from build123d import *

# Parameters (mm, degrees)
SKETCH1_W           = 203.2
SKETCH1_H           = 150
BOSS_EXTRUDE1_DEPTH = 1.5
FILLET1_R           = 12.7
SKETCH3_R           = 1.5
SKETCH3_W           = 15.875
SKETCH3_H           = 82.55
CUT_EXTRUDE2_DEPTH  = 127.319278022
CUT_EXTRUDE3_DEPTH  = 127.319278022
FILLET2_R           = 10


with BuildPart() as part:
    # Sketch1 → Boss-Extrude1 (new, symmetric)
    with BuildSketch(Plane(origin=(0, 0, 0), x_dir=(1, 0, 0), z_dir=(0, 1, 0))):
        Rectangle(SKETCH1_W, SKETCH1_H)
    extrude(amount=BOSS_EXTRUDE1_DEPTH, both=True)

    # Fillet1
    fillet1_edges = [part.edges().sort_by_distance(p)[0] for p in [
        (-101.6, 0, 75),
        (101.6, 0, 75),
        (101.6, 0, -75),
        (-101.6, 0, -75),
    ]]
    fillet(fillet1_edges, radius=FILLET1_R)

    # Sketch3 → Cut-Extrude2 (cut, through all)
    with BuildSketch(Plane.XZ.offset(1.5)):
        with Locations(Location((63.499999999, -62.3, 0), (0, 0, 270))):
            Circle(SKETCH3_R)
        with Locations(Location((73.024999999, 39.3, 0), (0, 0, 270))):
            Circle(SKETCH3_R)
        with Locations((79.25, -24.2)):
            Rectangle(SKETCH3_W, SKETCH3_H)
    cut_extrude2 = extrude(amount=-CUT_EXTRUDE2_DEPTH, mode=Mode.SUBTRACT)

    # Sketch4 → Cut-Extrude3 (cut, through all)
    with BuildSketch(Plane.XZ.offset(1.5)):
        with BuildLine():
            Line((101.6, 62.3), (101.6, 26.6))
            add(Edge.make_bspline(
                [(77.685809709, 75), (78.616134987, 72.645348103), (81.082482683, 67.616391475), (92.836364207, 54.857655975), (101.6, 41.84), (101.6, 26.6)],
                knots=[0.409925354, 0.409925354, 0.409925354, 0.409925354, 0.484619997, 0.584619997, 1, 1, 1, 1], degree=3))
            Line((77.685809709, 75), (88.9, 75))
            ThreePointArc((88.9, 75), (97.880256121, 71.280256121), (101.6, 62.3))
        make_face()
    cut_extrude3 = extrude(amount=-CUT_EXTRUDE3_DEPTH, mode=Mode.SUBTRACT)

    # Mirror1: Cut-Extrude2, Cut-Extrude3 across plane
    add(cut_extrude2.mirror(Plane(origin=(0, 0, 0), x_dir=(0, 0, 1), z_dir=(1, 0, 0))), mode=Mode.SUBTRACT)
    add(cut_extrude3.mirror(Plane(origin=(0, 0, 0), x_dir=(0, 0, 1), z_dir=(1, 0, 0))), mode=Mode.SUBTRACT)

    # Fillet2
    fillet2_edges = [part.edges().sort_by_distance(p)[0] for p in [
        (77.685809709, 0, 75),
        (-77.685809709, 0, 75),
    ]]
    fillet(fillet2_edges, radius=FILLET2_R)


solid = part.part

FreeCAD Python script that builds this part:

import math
import FreeCAD as App
import Part
import Sketcher


def edges_at(feature, points):
    """Names of the edges that pass closest to the given points."""
    edges = feature.Shape.Edges
    near = lambda p: min(range(len(edges)), key=lambda i: edges[i].distToShape(Part.Vertex(*p))[0])
    return sorted({f"Edge{near(p) + 1}" for p in points})

doc = App.newDocument("Part")
body = doc.addObject("PartDesign::Body", "Body")

# Sketch on XZ plane
sketch1 = doc.addObject("Sketcher::SketchObject", "Sketch")
body.addObject(sketch1)
sketch1.AttachmentSupport = (doc.XZ_Plane, [""])
sketch1.MapMode = "FlatFace"
sketch1.addGeometry(Part.LineSegment(App.Vector(-102, -75, 0), App.Vector(-102, 75, 0)), False)
sketch1.addGeometry(Part.LineSegment(App.Vector(-102, 75, 0), App.Vector(102, 75, 0)), False)
sketch1.addGeometry(Part.LineSegment(App.Vector(102, 75, 0), App.Vector(102, -75, 0)), False)
sketch1.addGeometry(Part.LineSegment(App.Vector(102, -75, 0), App.Vector(-102, -75, 0)), False)
sketch1.addConstraint(Sketcher.Constraint("Coincident", 0, 2, 1, 1))
sketch1.addConstraint(Sketcher.Constraint("Coincident", 1, 2, 2, 1))
sketch1.addConstraint(Sketcher.Constraint("Coincident", 2, 2, 3, 1))
sketch1.addConstraint(Sketcher.Constraint("Coincident", 3, 2, 0, 1))
sketch1.addConstraint(Sketcher.Constraint("Vertical", 0))
sketch1.addConstraint(Sketcher.Constraint("Horizontal", 1))
sketch1.addConstraint(Sketcher.Constraint("Vertical", 2))
sketch1.addConstraint(Sketcher.Constraint("Horizontal", 3))
sketch1.addConstraint(Sketcher.Constraint("Symmetric", 0, 2, 2, 2, -1, 1))
sketch1.addConstraint(Sketcher.Constraint("DistanceY", 0, 1, 0, 2, 150.0))
sketch1.addConstraint(Sketcher.Constraint("DistanceX", 1, 1, 1, 2, 203.2))
pad1 = doc.addObject("PartDesign::Pad", "Pad")
body.addObject(pad1)
pad1.Profile = sketch1
pad1.Length = 3
pad1.Midplane = True
doc.recompute()

fillet = doc.addObject("PartDesign::Fillet", "Fillet")
body.addObject(fillet)
fillet.Base = (pad1, edges_at(pad1, [
    (-101.6, 0, 75),
    (101.6, 0, 75),
    (101.6, 0, -75),
    (-101.6, 0, -75),
]))
fillet.Radius = 12.7

# Sketch on XZ plane
sketch2 = doc.addObject("Sketcher::SketchObject", "Sketch001")
body.addObject(sketch2)
sketch2.AttachmentSupport = (doc.XZ_Plane, [""])
sketch2.MapMode = "FlatFace"
sketch2.AttachmentOffset = App.Placement(App.Vector(0, 0, 1.5), App.Rotation())
sketch2.addGeometry(Part.Circle(App.Vector(63.5, -62.3, 0), App.Vector(0, 0, 1), 1.5), False)
sketch2.addGeometry(Part.Circle(App.Vector(73, 39.3, 0), App.Vector(0, 0, 1), 1.5), False)
sketch2.addGeometry(Part.LineSegment(App.Vector(71.3, 17.1, 0), App.Vector(71.3, -65.5, 0)), False)
sketch2.addGeometry(Part.LineSegment(App.Vector(71.3, -65.5, 0), App.Vector(87.2, -65.5, 0)), False)
sketch2.addGeometry(Part.LineSegment(App.Vector(87.2, -65.5, 0), App.Vector(87.2, 17.1, 0)), False)
sketch2.addGeometry(Part.LineSegment(App.Vector(87.2, 17.1, 0), App.Vector(71.3, 17.1, 0)), False)
sketch2.addConstraint(Sketcher.Constraint("Coincident", 2, 2, 3, 1))
sketch2.addConstraint(Sketcher.Constraint("Coincident", 3, 2, 4, 1))
sketch2.addConstraint(Sketcher.Constraint("Coincident", 4, 2, 5, 1))
sketch2.addConstraint(Sketcher.Constraint("Coincident", 5, 2, 2, 1))
sketch2.addConstraint(Sketcher.Constraint("Vertical", 2))
sketch2.addConstraint(Sketcher.Constraint("Horizontal", 3))
sketch2.addConstraint(Sketcher.Constraint("Vertical", 4))
sketch2.addConstraint(Sketcher.Constraint("Horizontal", 5))
sketch2.addConstraint(Sketcher.Constraint("Equal", 0, 1))
sketch2.addConstraint(Sketcher.Constraint("Diameter", 0, 3.0))
sketch2.addConstraint(Sketcher.Constraint("DistanceY", 2, 2, 2, 1, 82.55))
sketch2.addConstraint(Sketcher.Constraint("DistanceX", -1, 1, 0, 3, 63.5))
sketch2.addConstraint(Sketcher.Constraint("DistanceY", 0, 3, -1, 1, 62.3))
sketch2.addConstraint(Sketcher.Constraint("DistanceY", -1, 1, 1, 3, 39.3))
sketch2.addConstraint(Sketcher.Constraint("DistanceX", 3, 1, 3, 2, 15.875))
sketch2.addConstraint(Sketcher.Constraint("DistanceX", -1, 1, 1, 3, 73.025))
sketch2.addConstraint(Sketcher.Constraint("DistanceY", 2, 2, -1, 1, 65.475))
sketch2.addConstraint(Sketcher.Constraint("DistanceX", -1, 1, 2, 2, 71.3125))
pocket1 = doc.addObject("PartDesign::Pocket", "Pocket")
body.addObject(pocket1)
pocket1.Profile = sketch2
pocket1.Type = "ThroughAll"

# Sketch on XZ plane
sketch3 = doc.addObject("Sketcher::SketchObject", "Sketch002")
body.addObject(sketch3)
sketch3.AttachmentSupport = (doc.XZ_Plane, [""])
sketch3.MapMode = "FlatFace"
sketch3.AttachmentOffset = App.Placement(App.Vector(0, 0, 1.5), App.Rotation())
sketch3.addGeometry(Part.LineSegment(App.Vector(101.6, 26.6, 0), App.Vector(101.6, 62.3, 0)), False)
sketch3.addGeometry(Part.ArcOfCircle(Part.Circle(App.Vector(88.9, 62.3, 0), App.Vector(0, 0, 1), 12.7), math.radians(0), math.radians(90)), False)
sketch3.addGeometry(Part.LineSegment(App.Vector(88.9, 75, 0), App.Vector(77.68581, 75, 0)), False)
sketch3.addGeometry(Part.BSplineCurve([App.Vector(77.68581, 75, 0), App.Vector(78.616135, 72.645348, 0), App.Vector(81.082483, 67.616391, 0), App.Vector(92.836364, 54.857656, 0), App.Vector(101.6, 41.84, 0), App.Vector(101.6, 26.6, 0)], [4, 1, 1, 4], [0.409925354, 0.484619997, 0.584619997, 1], False, 3, [1, 1, 1, 1, 1, 1], False), False)
sketch3.addConstraint(Sketcher.Constraint("Block", 3))
sketch3.addConstraint(Sketcher.Constraint("Tangent", 0, 2, 1, 1))
sketch3.addConstraint(Sketcher.Constraint("Tangent", 1, 2, 2, 1))
sketch3.addConstraint(Sketcher.Constraint("Coincident", 2, 2, 3, 1))
sketch3.addConstraint(Sketcher.Constraint("Coincident", 3, 2, 0, 1))
sketch3.addConstraint(Sketcher.Constraint("Vertical", 0))
sketch3.addConstraint(Sketcher.Constraint("Horizontal", 2))
sketch3.addConstraint(Sketcher.Constraint("Radius", 1, 12.7))
pocket2 = doc.addObject("PartDesign::Pocket", "Pocket001")
body.addObject(pocket2)
pocket2.Profile = sketch3
pocket2.Type = "ThroughAll"
doc.recompute()

mirrored = doc.addObject("PartDesign::Mirrored", "Mirrored")
body.addObject(mirrored)
mirrored.Originals = [pocket1, pocket2]
mirrored.MirrorPlane = (doc.YZ_Plane, [""])
body.Tip = mirrored
doc.recompute()

fillet2 = doc.addObject("PartDesign::Fillet", "Fillet001")
body.addObject(fillet2)
fillet2.Base = (mirrored, edges_at(mirrored, [(77.686, 0, 75), (-77.686, 0, 75)]))
fillet2.Radius = 10

doc.recompute()
